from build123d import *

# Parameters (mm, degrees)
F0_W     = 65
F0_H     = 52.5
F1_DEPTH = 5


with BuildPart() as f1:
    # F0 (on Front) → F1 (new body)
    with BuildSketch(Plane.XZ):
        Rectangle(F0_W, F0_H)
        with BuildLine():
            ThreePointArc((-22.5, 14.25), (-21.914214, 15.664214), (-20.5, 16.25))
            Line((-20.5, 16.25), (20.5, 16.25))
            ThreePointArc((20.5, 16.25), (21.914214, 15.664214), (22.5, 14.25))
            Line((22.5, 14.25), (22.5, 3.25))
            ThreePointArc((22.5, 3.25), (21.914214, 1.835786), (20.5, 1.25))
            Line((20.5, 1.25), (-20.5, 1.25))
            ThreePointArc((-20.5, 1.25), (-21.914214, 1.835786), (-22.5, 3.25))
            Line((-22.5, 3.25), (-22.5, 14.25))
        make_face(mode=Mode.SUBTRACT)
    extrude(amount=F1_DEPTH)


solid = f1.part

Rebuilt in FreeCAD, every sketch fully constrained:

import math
import FreeCAD as App
import Part
import Sketcher
from FreeCAD import Vector


def add_polygon(sketch, points):
    """Adds a closed chain of lines whose ends are joined by coincident constraints."""
    first, n = sketch.GeometryCount, len(points)
    for a, b in zip(points, points[1:] + points[:1]):
        sketch.addGeometry(Part.LineSegment(App.Vector(*a, 0), App.Vector(*b, 0)), False)
    for i in range(n):
        sketch.addConstraint(Sketcher.Constraint("Coincident", first + i, 2, first + (i + 1) % n, 1))

doc = App.newDocument("Part")
params = doc.addObject("Spreadsheet::Sheet", "Params")
for row, (alias, value) in enumerate([
    ("sketch1_radius", "1.999999 mm"),
    ("sketch1_width", "65 mm"),
    ("sketch1_width2", "41 mm"),
    ("sketch1_height", "11 mm"),
    ("sketch1_height2", "52.5 mm"),
    ("pad1_length", "5 mm"),
], start=1):
    params.set(f"A{row}", alias)
    params.set(f"B{row}", "=" + value)
    params.setAlias(f"B{row}", alias)

body = doc.addObject("PartDesign::Body", "Body")

# Sketch on XZ plane
sketch1 = body.newObject("Sketcher::SketchObject", "Sketch")
sketch1.AttachmentSupport = (doc.getObject("XZ_Plane"), [""])
sketch1.MapMode = "FlatFace"
add_polygon(sketch1, [(-32.5, 26.25), (-32.5, -26.25), (32.5, -26.25), (32.5, 26.25)])  # lines 0-3
sketch1.addGeometry(Part.LineSegment(Vector(-22.5, 3.25, 0), Vector(-22.5, 14.25, 0)), False)  # 4
sketch1.addGeometry(Part.ArcOfCircle(Part.Circle(Vector(-20.500001, 14.250001, 0), Vector(0, 0, 1), 1.999999), math.radians(89.999957), math.radians(180.000043)), False)  # 5
sketch1.addGeometry(Part.LineSegment(Vector(-20.5, 16.25, 0), Vector(20.5, 16.25, 0)), False)  # 6
sketch1.addGeometry(Part.ArcOfCircle(Part.Circle(Vector(20.500001, 14.250001, 0), Vector(0, 0, 1), 1.999999), math.radians(-0.000043), math.radians(90.000043)), False)  # 7
sketch1.addGeometry(Part.LineSegment(Vector(22.5, 14.25, 0), Vector(22.5, 3.25, 0)), False)  # 8
sketch1.addGeometry(Part.ArcOfCircle(Part.Circle(Vector(20.500001, 3.249999, 0), Vector(0, 0, 1), 1.999999), math.radians(-90.000043), math.radians(0.000043)), False)  # 9
sketch1.addGeometry(Part.LineSegment(Vector(20.5, 1.25, 0), Vector(-20.5, 1.25, 0)), False)  # 10
sketch1.addGeometry(Part.ArcOfCircle(Part.Circle(Vector(-20.500001, 3.249999, 0), Vector(0, 0, 1), 1.999999), math.radians(179.999957), math.radians(270.000043)), False)  # 11
sketch1.addConstraint(Sketcher.Constraint("Tangent", 4, 2, 5, 2))
sketch1.addConstraint(Sketcher.Constraint("Tangent", 5, 1, 6, 1))
sketch1.addConstraint(Sketcher.Constraint("Tangent", 6, 2, 7, 2))
sketch1.addConstraint(Sketcher.Constraint("Tangent", 7, 1, 8, 1))
sketch1.addConstraint(Sketcher.Constraint("Tangent", 8, 2, 9, 2))
sketch1.addConstraint(Sketcher.Constraint("Tangent", 9, 1, 10, 1))
sketch1.addConstraint(Sketcher.Constraint("Tangent", 10, 2, 11, 2))
sketch1.addConstraint(Sketcher.Constraint("Tangent", 11, 1, 4, 1))
sketch1.addConstraint(Sketcher.Constraint("Vertical", 0))
sketch1.addConstraint(Sketcher.Constraint("Horizontal", 1))
sketch1.addConstraint(Sketcher.Constraint("Vertical", 2))
sketch1.addConstraint(Sketcher.Constraint("Horizontal", 3))
sketch1.addConstraint(Sketcher.Constraint("Vertical", 4))
sketch1.addConstraint(Sketcher.Constraint("Horizontal", 6))
sketch1.addConstraint(Sketcher.Constraint("Vertical", 8))
sketch1.addConstraint(Sketcher.Constraint("Horizontal", 10))
sketch1.addConstraint(Sketcher.Constraint("Equal", 5, 7))
sketch1.addConstraint(Sketcher.Constraint("Equal", 7, 9))
sketch1.addConstraint(Sketcher.Constraint("Equal", 9, 11))
sketch1.addConstraint(Sketcher.Constraint("Symmetric", 0, 2, 2, 2, -1, 1))
sketch1.addConstraint(Sketcher.Constraint("Radius", 5, 1.999999))
sketch1.addConstraint(Sketcher.Constraint("DistanceX", 1, 1, 1, 2, 65.0))
sketch1.addConstraint(Sketcher.Constraint("DistanceX", 6, 1, 6, 2, 41.0))
sketch1.addConstraint(Sketcher.Constraint("DistanceY", 4, 1, 4, 2, 11.0))
sketch1.addConstraint(Sketcher.Constraint("DistanceY", 0, 2, 0, 1, 52.5))
sketch1.addConstraint(Sketcher.Constraint("DistanceX", 0, 2, 11, 3, 11.999999))
sketch1.addConstraint(Sketcher.Constraint("DistanceY", 7, 3, 2, 2, 11.999999))
sketch1.setExpression("Constraints[24]", "Params.sketch1_radius")
sketch1.setExpression("Constraints[25]", "Params.sketch1_width")
sketch1.setExpression("Constraints[26]", "Params.sketch1_width2")
sketch1.setExpression("Constraints[27]", "Params.sketch1_height")
sketch1.setExpression("Constraints[28]", "Params.sketch1_height2")
pad1 = body.newObject("PartDesign::Pad", "Pad")
pad1.Profile = sketch1
pad1.setExpression("Length", "Params.pad1_length")

doc.recompute()
